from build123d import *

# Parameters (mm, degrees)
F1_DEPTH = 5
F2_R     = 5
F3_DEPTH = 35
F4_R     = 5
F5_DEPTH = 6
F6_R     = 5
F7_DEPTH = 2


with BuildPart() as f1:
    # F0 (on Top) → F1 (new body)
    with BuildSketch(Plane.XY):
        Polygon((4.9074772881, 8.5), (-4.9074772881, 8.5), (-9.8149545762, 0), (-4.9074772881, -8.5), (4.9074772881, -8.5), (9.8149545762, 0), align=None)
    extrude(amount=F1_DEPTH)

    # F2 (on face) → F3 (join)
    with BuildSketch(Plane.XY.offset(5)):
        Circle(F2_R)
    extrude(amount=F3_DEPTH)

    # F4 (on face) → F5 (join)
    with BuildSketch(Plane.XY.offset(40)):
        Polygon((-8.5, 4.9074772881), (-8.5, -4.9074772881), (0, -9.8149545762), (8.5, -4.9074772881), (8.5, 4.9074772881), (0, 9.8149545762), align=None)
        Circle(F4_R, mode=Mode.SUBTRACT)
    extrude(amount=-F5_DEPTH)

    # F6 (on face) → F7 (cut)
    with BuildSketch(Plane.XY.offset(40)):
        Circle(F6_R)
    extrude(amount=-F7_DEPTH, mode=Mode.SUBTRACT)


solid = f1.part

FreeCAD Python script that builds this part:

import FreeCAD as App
import Part
import Sketcher

V = App.Vector
Q = App.Units.Quantity

doc = App.newDocument("Part")
body = doc.addObject("PartDesign::Body", "Body")

# Sketch on XY plane
sketch1 = body.newObject("Sketcher::SketchObject", "Sketch")
sketch1.AttachmentSupport = (doc.getObject("XY_Plane"), [""])
sketch1.MapMode = "FlatFace"
sketch1.addGeometry([
    Part.LineSegment(V(5, 8, 0), V(-5, 8, 0)),  # 0
    Part.LineSegment(V(-5, 8, 0), V(-10, 0, 0)),  # 1
    Part.LineSegment(V(-10, 0, 0), V(-5, -8, 0)),  # 2
    Part.LineSegment(V(-5, -8, 0), V(5, -8, 0)),  # 3
    Part.LineSegment(V(5, -8, 0), V(10, 0, 0)),  # 4
    Part.LineSegment(V(10, 0, 0), V(5, 8, 0)),  # 5
], False)
sketch1.addConstraint([
    Sketcher.Constraint("Coincident", 0, 2, 1, 1),
    Sketcher.Constraint("Coincident", 1, 2, 2, 1),
    Sketcher.Constraint("Coincident", 2, 2, 3, 1),
    Sketcher.Constraint("Coincident", 3, 2, 4, 1),
    Sketcher.Constraint("Coincident", 4, 2, 5, 1),
    Sketcher.Constraint("Coincident", 5, 2, 0, 1),
    Sketcher.Constraint("Horizontal", 0),
    Sketcher.Constraint("Horizontal", 3),
    Sketcher.Constraint("Symmetric", 0, 2, 3, 2, -1, 1),
    Sketcher.Constraint("Symmetric", 1, 2, 4, 2, -1, 1),
    Sketcher.Constraint("PointOnObject", 1, 2, -1),
    Sketcher.Constraint("Parallel", 2, 5),
    Sketcher.Constraint("Vertical", 0, 2, 2, 2),
    Sketcher.Constraint("Angle", 1, Q("-120 deg")),
    Sketcher.Constraint("DistanceY", 2, 2, 0, 2, Q("17 mm")),
    Sketcher.Constraint("DistanceX", 0, 2, 0, 1, Q("9.814955 mm")),
])
pad1 = body.newObject("PartDesign::Pad", "Pad")
pad1.Profile = sketch1
pad1.Length = 5

# Sketch on XY plane
sketch2 = body.newObject("Sketcher::SketchObject", "Sketch001")
sketch2.AttachmentSupport = (doc.getObject("XY_Plane"), [""])
sketch2.MapMode = "FlatFace"
sketch2.AttachmentOffset = App.Placement(V(0, 0, 5), App.Rotation())
sketch2.addGeometry(Part.Circle(V(0, 0, 0), V(0, 0, 1), 5), False)
sketch2.addConstraint([
    Sketcher.Constraint("Coincident", 0, 3, -1, 1),
    Sketcher.Constraint("Diameter", 0, Q("10 mm")),
])
pad2 = body.newObject("PartDesign::Pad", "Pad001")
pad2.Profile = sketch2
pad2.Length = 35

# Sketch on XY plane
sketch3 = body.newObject("Sketcher::SketchObject", "Sketch002")
sketch3.AttachmentSupport = (doc.getObject("XY_Plane"), [""])
sketch3.MapMode = "FlatFace"
sketch3.AttachmentOffset = App.Placement(V(0, 0, 40), App.Rotation())
sketch3.addGeometry([
    Part.LineSegment(V(-8, 5, 0), V(-8, -5, 0)),  # 0
    Part.LineSegment(V(-8, -5, 0), V(0, -10, 0)),  # 1
    Part.LineSegment(V(0, -10, 0), V(8, -5, 0)),  # 2
    Part.LineSegment(V(8, -5, 0), V(8, 5, 0)),  # 3
    Part.LineSegment(V(8, 5, 0), V(0, 10, 0)),  # 4
    Part.LineSegment(V(0, 10, 0), V(-8, 5, 0)),  # 5
    Part.Circle(V(0, 0, 0), V(0, 0, 1), 5),  # 6
], False)
sketch3.addConstraint([
    Sketcher.Constraint("Coincident", 0, 2, 1, 1),
    Sketcher.Constraint("Coincident", 1, 2, 2, 1),
    Sketcher.Constraint("Coincident", 2, 2, 3, 1),
    Sketcher.Constraint("Coincident", 3, 2, 4, 1),
    Sketcher.Constraint("Coincident", 4, 2, 5, 1),
    Sketcher.Constraint("Coincident", 5, 2, 0, 1),
    Sketcher.Constraint("Vertical", 0),
    Sketcher.Constraint("Vertical", 3),
    Sketcher.Constraint("Coincident", 6, 3, -1, 1),
    Sketcher.Constraint("Symmetric", 0, 2, 3, 2, -1, 1),
    Sketcher.Constraint("Symmetric", 1, 2, 4, 2, -1, 1),
    Sketcher.Constraint("PointOnObject", 1, 2, -2),
    Sketcher.Constraint("Parallel", 2, 5),
    Sketcher.Constraint("Horizontal", 0, 2, 2, 2),
    Sketcher.Constraint("Diameter", 6, Q("10 mm")),
    Sketcher.Constraint("Angle", 1, Q("-30 deg")),
    Sketcher.Constraint("DistanceX", 0, 2, 2, 2, Q("17 mm")),
    Sketcher.Constraint("DistanceY", 0, 2, 0, 1, Q("9.814955 mm")),
])
pad3 = body.newObject("PartDesign::Pad", "Pad002")
pad3.Profile = sketch3
pad3.Length = 6
pad3.Reversed = True

# Sketch on XY plane
sketch4 = body.newObject("Sketcher::SketchObject", "Sketch003")
sketch4.AttachmentSupport = (doc.getObject("XY_Plane"), [""])
sketch4.MapMode = "FlatFace"
sketch4.AttachmentOffset = App.Placement(V(0, 0, 40), App.Rotation())
sketch4.addGeometry(Part.Circle(V(0, 0, 0), V(0, 0, 1), 5), False)
sketch4.addConstraint([
    Sketcher.Constraint("Coincident", 0, 3, -1, 1),
    Sketcher.Constraint("Diameter", 0, Q("10 mm")),
])
pocket1 = body.newObject("PartDesign::Pocket", "Pocket")
pocket1.Profile = sketch4
pocket1.Length = 2

doc.recompute()
